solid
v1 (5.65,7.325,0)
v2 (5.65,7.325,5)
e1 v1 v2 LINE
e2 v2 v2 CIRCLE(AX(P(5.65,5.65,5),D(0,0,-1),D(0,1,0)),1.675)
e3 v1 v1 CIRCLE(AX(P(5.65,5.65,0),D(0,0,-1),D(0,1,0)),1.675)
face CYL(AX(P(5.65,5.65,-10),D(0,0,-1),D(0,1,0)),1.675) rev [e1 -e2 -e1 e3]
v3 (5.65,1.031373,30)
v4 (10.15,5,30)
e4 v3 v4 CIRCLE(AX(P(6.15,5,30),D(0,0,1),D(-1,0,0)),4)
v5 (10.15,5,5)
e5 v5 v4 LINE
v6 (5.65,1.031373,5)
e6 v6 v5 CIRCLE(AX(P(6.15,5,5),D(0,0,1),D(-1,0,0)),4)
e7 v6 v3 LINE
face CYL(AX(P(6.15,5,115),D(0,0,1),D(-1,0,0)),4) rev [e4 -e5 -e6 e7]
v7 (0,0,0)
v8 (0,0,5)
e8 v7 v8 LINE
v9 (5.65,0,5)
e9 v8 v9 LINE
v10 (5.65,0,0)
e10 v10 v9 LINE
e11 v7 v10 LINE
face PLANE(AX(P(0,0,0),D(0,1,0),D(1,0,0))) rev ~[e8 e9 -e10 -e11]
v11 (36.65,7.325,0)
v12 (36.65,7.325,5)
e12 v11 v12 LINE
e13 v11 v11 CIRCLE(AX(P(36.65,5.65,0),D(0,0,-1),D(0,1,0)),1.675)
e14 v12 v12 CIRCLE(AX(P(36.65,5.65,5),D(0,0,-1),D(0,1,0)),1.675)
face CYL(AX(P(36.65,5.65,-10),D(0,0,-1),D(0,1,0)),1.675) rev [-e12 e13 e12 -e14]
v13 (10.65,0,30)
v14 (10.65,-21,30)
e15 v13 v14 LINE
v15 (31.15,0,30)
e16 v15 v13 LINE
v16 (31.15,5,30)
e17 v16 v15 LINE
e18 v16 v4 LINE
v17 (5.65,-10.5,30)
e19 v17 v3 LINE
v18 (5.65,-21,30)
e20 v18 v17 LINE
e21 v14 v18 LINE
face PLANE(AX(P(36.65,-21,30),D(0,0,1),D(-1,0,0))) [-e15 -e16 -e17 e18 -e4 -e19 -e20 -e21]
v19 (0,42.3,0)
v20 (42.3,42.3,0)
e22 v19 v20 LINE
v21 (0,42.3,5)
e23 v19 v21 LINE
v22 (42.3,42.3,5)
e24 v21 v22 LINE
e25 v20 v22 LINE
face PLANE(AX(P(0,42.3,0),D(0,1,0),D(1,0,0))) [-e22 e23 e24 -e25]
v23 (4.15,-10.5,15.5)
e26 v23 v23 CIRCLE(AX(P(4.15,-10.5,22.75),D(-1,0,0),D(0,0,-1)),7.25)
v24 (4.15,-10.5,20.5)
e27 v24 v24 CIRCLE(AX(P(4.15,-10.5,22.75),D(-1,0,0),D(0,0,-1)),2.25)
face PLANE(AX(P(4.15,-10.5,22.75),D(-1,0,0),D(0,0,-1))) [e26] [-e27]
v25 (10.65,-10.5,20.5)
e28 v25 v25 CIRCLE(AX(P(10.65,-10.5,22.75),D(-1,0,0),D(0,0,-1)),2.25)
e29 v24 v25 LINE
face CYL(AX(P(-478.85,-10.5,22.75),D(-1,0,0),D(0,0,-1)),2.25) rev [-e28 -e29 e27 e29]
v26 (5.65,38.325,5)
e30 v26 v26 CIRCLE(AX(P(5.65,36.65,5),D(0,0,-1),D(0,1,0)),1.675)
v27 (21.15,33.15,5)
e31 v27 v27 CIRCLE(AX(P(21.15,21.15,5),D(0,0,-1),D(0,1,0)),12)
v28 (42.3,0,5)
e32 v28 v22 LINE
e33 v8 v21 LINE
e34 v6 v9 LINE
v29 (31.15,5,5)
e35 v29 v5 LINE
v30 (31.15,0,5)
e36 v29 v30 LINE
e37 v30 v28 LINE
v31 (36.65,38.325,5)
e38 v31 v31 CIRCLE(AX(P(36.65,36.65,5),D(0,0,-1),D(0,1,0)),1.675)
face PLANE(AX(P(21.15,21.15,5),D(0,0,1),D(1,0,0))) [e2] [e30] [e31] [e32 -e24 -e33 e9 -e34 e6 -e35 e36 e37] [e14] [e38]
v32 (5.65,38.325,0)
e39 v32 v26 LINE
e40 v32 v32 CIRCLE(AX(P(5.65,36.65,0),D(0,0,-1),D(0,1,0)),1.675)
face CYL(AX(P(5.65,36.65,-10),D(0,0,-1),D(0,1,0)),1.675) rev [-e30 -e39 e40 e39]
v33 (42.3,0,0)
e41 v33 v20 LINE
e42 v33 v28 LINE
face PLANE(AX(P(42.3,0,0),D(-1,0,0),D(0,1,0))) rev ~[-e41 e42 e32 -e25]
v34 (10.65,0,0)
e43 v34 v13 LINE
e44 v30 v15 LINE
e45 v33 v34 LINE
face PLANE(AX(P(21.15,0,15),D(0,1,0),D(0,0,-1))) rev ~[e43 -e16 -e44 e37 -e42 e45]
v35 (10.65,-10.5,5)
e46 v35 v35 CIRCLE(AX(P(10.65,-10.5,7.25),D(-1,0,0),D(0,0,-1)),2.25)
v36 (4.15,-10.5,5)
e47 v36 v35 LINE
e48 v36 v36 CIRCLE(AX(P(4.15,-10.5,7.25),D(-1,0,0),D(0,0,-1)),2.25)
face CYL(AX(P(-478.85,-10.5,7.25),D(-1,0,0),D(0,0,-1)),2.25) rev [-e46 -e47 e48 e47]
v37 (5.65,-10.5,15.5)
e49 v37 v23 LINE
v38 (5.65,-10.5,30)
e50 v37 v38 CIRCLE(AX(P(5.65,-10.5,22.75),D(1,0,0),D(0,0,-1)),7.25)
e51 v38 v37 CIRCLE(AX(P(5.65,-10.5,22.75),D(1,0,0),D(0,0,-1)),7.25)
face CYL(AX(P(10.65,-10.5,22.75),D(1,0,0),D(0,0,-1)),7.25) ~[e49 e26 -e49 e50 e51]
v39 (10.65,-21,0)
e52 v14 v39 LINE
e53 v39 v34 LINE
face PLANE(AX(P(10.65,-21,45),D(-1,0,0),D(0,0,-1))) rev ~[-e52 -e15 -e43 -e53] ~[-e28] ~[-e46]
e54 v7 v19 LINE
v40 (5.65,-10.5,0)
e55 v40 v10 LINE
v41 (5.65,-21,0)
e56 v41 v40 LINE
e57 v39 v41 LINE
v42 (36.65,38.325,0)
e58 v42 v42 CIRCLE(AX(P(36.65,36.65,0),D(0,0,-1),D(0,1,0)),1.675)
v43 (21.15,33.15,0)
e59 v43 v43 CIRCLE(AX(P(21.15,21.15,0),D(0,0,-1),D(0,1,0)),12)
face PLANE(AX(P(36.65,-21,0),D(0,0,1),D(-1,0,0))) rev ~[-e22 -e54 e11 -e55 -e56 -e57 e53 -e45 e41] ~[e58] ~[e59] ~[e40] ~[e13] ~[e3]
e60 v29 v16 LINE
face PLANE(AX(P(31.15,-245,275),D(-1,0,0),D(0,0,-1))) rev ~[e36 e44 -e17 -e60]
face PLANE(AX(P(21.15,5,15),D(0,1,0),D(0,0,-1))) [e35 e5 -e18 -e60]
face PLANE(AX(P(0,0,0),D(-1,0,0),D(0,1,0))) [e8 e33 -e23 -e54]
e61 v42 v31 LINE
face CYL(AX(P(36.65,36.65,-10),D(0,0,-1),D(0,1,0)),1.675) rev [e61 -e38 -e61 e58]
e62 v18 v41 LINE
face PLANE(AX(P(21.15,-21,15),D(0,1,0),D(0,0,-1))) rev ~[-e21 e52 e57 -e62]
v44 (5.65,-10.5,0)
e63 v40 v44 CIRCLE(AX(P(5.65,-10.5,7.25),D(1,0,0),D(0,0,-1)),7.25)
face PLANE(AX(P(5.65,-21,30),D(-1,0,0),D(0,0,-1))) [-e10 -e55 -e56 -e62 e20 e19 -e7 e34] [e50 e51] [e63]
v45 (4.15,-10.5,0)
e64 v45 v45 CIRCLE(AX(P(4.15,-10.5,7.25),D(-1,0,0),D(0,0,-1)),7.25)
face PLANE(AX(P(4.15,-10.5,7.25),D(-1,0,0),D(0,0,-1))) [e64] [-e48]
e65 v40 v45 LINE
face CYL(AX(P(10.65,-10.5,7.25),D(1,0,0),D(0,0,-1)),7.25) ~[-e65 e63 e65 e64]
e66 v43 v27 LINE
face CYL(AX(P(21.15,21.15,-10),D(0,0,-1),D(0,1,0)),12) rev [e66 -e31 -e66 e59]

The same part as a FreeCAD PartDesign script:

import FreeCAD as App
import Part
import Sketcher
from FreeCAD import Vector
Q = App.Units.Quantity


def add_polygon(sketch, points):
    """Adds a closed chain of lines whose ends are joined by coincident constraints."""
    first, n = sketch.GeometryCount, len(points)
    for a, b in zip(points, points[1:] + points[:1]):
        sketch.addGeometry(Part.LineSegment(App.Vector(*a, 0), App.Vector(*b, 0)), False)
    for i in range(n):
        sketch.addConstraint(Sketcher.Constraint("Coincident", first + i, 2, first + (i + 1) % n, 1))

doc = App.newDocument("Part")
params = doc.addObject("Spreadsheet::Sheet", "Params")
for row, (alias, value) in enumerate([
    ("sketch1_width", "500 mm"),
    ("pad1_length", "500 mm"),
    ("sketch2_diameter", "4.5 mm"),
    ("pad2_length", "1000 mm"),
    ("sketch3_diameter", "4.5 mm"),
    ("pad3_length", "1000 mm"),
    ("sketch4_diameter", "14.5 mm"),
    ("pad4_length", "6.5 mm"),
    ("sketch5_diameter", "14.5 mm"),
    ("pad5_length", "6.5 mm"),
    ("sketch6_diameter", "14.5 mm"),
    ("pad6_length", "6.5 mm"),
    ("sketch7_diameter", "14.5 mm"),
    ("pad7_length", "6.5 mm"),
    ("sketch8_diameter", "8 mm"),
    ("pad8_length", "200 mm"),
    ("sketch9_width", "60 mm"),
    ("sketch9_height", "21 mm"),
    ("pad9_length", "21 mm"),
    ("sketch10_width", "30 mm"),
    ("sketch10_height", "31 mm"),
    ("pad10_length", "26 mm"),
    ("sketch11_diameter", "24 mm"),
    ("sketch11_diameter2", "3.35 mm"),
    ("pad11_length", "20 mm"),
    ("sketch12_width", "42.3 mm"),
    ("pad12_length", "5 mm"),
], start=1):
    params.set(f"A{row}", alias)
    params.set(f"B{row}", "=" + value)
    params.setAlias(f"B{row}", alias)

body = doc.addObject("PartDesign::Body", "Body")

sketch1 = body.newObject("Sketcher::SketchObject", "Sketch")
sketch1.AttachmentSupport = (doc.getObject("XY_Plane"), [""])
sketch1.MapMode = "FlatFace"
sketch1.AttachmentOffset = App.Placement(Vector(0, 0, -250), App.Rotation())
add_polygon(sketch1, [(-250, -10), (-250, -510), (250, -510), (250, -10)])
sketch1.addConstraint([
    Sketcher.Constraint("Vertical", 0),
    Sketcher.Constraint("Horizontal", 1),
    Sketcher.Constraint("Vertical", 2),
    Sketcher.Constraint("Horizontal", 3),
    Sketcher.Constraint("Equal", 3, 0),
    Sketcher.Constraint("DistanceX", 1, 1, 1, 2, Q("500 mm")),
    Sketcher.Constraint("DistanceX", 0, 2, -1, 1, Q("250 mm")),
    Sketcher.Constraint("DistanceY", 0, 2, -1, 1, Q("510 mm")),
])
sketch1.setExpression("Constraints[9]", "Params.sketch1_width")
pad1 = body.newObject("PartDesign::Pad", "Pad")
pad1.Profile = sketch1
pad1.setExpression("Length", "Params.pad1_length")
body2 = doc.addObject("PartDesign::Body", "Body001")

sketch2 = body2.newObject("Sketcher::SketchObject", "Sketch001")
sketch2.AttachmentSupport = (doc.getObject("XZ_Plane001"), [""])
sketch2.MapMode = "FlatFace"
sketch2.AttachmentOffset = App.Placement(Vector(0, 0, -500), App.Rotation())
sketch2.addGeometry(Part.Circle(Vector(15.5, 0, 0), Vector(0, 0, 1), 2.2), False)
sketch2.addConstraint([
    Sketcher.Constraint("PointOnObject", 0, 3, -1),
    Sketcher.Constraint("Diameter", 0, Q("4.5 mm")),
    Sketcher.Constraint("DistanceX", -1, 1, 0, 3, Q("15.5 mm")),
])
sketch2.setExpression("Constraints[1]", "Params.sketch2_diameter")
pad2 = body2.newObject("PartDesign::Pad", "Pad001")
pad2.Profile = sketch2
pad2.setExpression("Length", "Params.pad2_length")
body3 = doc.addObject("PartDesign::Body", "Body002")
body3.AllowCompound = True

sketch3 = body3.newObject("Sketcher::SketchObject", "Sketch002")
sketch3.AttachmentSupport = (doc.getObject("XZ_Plane002"), [""])
sketch3.MapMode = "FlatFace"
sketch3.AttachmentOffset = App.Placement(Vector(0, 0, -500), App.Rotation())
sketch3.addGeometry(Part.Circle(Vector(0, 0, 0), Vector(0, 0, 1), 2.2), False)
sketch3.addConstraint([
    Sketcher.Constraint("Coincident", 0, 3, -1, 1),
    Sketcher.Constraint("Diameter", 0, Q("4.5 mm")),
])
sketch3.setExpression("Constraints[1]", "Params.sketch3_diameter")
pad3 = body3.newObject("PartDesign::Pad", "Pad002")
pad3.Profile = sketch3
pad3.setExpression("Length", "Params.pad3_length")
doc.recompute()

boolean = body3.newObject("PartDesign::Boolean", "Boolean")
boolean.Type = "Fuse"
boolean.addObjects([body2])
body4 = doc.addObject("PartDesign::Body", "Body003")
body4.AllowCompound = True
doc.recompute()

body3.Placement = App.Placement(Vector(2.25, 0, -15.5), App.Rotation(Vector(0, 0, 1), 0))
boolean2 = body4.newObject("PartDesign::Boolean", "Boolean001")
boolean2.Type = "Fuse"
boolean2.addObjects([body3])
doc.recompute()

boolean3 = body4.newObject("PartDesign::Boolean", "Boolean002")
boolean3.Type = "Fuse"
boolean3.addObjects([body])
body5 = doc.addObject("PartDesign::Body", "Body004")

sketch4 = body5.newObject("Sketcher::SketchObject", "Sketch003")
sketch4.AttachmentSupport = (doc.getObject("XZ_Plane004"), [""])
sketch4.MapMode = "FlatFace"
sketch4.addGeometry(Part.Circle(Vector(16, 0, 0), Vector(0, 0, 1), 7), False)
sketch4.addConstraint([
    Sketcher.Constraint("PointOnObject", 0, 3, -1),
    Sketcher.Constraint("Diameter", 0, Q("14.5 mm")),
    Sketcher.Constraint("DistanceX", -1, 1, 0, 3, Q("15.5 mm")),
])
sketch4.setExpression("Constraints[1]", "Params.sketch4_diameter")
pad4 = body5.newObject("PartDesign::Pad", "Pad003")
pad4.Profile = sketch4
pad4.setExpression("Length", "Params.pad4_length")
body6 = doc.addObject("PartDesign::Body", "Body005")
body6.AllowCompound = True

sketch5 = body6.newObject("Sketcher::SketchObject", "Sketch004")
sketch5.AttachmentSupport = (doc.getObject("XZ_Plane005"), [""])
sketch5.MapMode = "FlatFace"
sketch5.addGeometry(Part.Circle(Vector(0, 0, 0), Vector(0, 0, 1), 7), False)
sketch5.addConstraint([
    Sketcher.Constraint("Coincident", 0, 3, -1, 1),
    Sketcher.Constraint("Diameter", 0, Q("14.5 mm")),
])
sketch5.setExpression("Constraints[1]", "Params.sketch5_diameter")
pad5 = body6.newObject("PartDesign::Pad", "Pad004")
pad5.Profile = sketch5
pad5.setExpression("Length", "Params.pad5_length")
doc.recompute()

boolean4 = body6.newObject("PartDesign::Boolean", "Boolean003")
boolean4.Type = "Fuse"
boolean4.addObjects([body5])
body7 = doc.addObject("PartDesign::Body", "Body006")
body7.AllowCompound = True
doc.recompute()

body6.Placement = App.Placement(Vector(2.25, 10.5, -15.5), App.Rotation(Vector(1, 0, 0), 180))
boolean5 = body7.newObject("PartDesign::Boolean", "Boolean004")
boolean5.Type = "Fuse"
boolean5.addObjects([body6])
body8 = doc.addObject("PartDesign::Body", "Body007")

sketch6 = body8.newObject("Sketcher::SketchObject", "Sketch005")
sketch6.AttachmentSupport = (doc.getObject("XZ_Plane007"), [""])
sketch6.MapMode = "FlatFace"
sketch6.addGeometry(Part.Circle(Vector(16, 0, 0), Vector(0, 0, 1), 7), False)
sketch6.addConstraint([
    Sketcher.Constraint("PointOnObject", 0, 3, -1),
    Sketcher.Constraint("Diameter", 0, Q("14.5 mm")),
    Sketcher.Constraint("DistanceX", -1, 1, 0, 3, Q("15.5 mm")),
])
sketch6.setExpression("Constraints[1]", "Params.sketch6_diameter")
pad6 = body8.newObject("PartDesign::Pad", "Pad005")
pad6.Profile = sketch6
pad6.setExpression("Length", "Params.pad6_length")
body9 = doc.addObject("PartDesign::Body", "Body008")
body9.AllowCompound = True

sketch7 = body9.newObject("Sketcher::SketchObject", "Sketch006")
sketch7.AttachmentSupport = (doc.getObject("XZ_Plane008"), [""])
sketch7.MapMode = "FlatFace"
sketch7.addGeometry(Part.Circle(Vector(0, 0, 0), Vector(0, 0, 1), 7), False)
sketch7.addConstraint([
    Sketcher.Constraint("Coincident", 0, 3, -1, 1),
    Sketcher.Constraint("Diameter", 0, Q("14.5 mm")),
])
sketch7.setExpression("Constraints[1]", "Params.sketch7_diameter")
pad7 = body9.newObject("PartDesign::Pad", "Pad006")
pad7.Profile = sketch7
pad7.setExpression("Length", "Params.pad7_length")
doc.recompute()

boolean6 = body9.newObject("PartDesign::Boolean", "Boolean005")
boolean6.Type = "Fuse"
boolean6.addObjects([body8])
body10 = doc.addObject("PartDesign::Body", "Body009")
body10.AllowCompound = True
doc.recompute()

body9.Placement = App.Placement(Vector(2.25, -10.5, -15.5), App.Rotation(Vector(0, 0, 1), 0))
boolean7 = body10.newObject("PartDesign::Boolean", "Boolean006")
boolean7.Type = "Fuse"
boolean7.addObjects([body9])
doc.recompute()

boolean8 = body10.newObject("PartDesign::Boolean", "Boolean007")
boolean8.Type = "Fuse"
boolean8.addObjects([body7])
body11 = doc.addObject("PartDesign::Body", "Body010")

sketch8 = body11.newObject("Sketcher::SketchObject", "Sketch007")
sketch8.AttachmentSupport = (doc.getObject("YZ_Plane010"), [""])
sketch8.MapMode = "FlatFace"
sketch8.AttachmentOffset = App.Placement(Vector(0, 0, -100), App.Rotation())
sketch8.addGeometry(Part.Circle(Vector(15, 13, 0), Vector(0, 0, 1), 4), False)
sketch8.addConstraint([
    Sketcher.Constraint("Diameter", 0, Q("8 mm")),
    Sketcher.Constraint("DistanceX", -1, 1, 0, 3, Q("15 mm")),
    Sketcher.Constraint("DistanceY", -1, 1, 0, 3, Q("13 mm")),
])
sketch8.setExpression("Constraints[0]", "Params.sketch8_diameter")
pad8 = body11.newObject("PartDesign::Pad", "Pad007")
pad8.Profile = sketch8
pad8.setExpression("Length", "Params.pad8_length")
body12 = doc.addObject("PartDesign::Body", "Body011")
body12.AllowCompound = True

sketch9 = body12.newObject("Sketcher::SketchObject", "Sketch008")
sketch9.AttachmentSupport = (doc.getObject("XY_Plane011"), [""])
sketch9.MapMode = "FlatFace"
sketch9.AttachmentOffset = App.Placement(Vector(0, 0, -13), App.Rotation())
add_polygon(sketch9, [(-30, 10), (-30, -10), (30, -10), (30, 10)])
sketch9.addConstraint([
    Sketcher.Constraint("Vertical", 0),
    Sketcher.Constraint("Horizontal", 1),
    Sketcher.Constraint("Vertical", 2),
    Sketcher.Constraint("Horizontal", 3),
    Sketcher.Constraint("Symmetric", 0, 2, 2, 2, -1, 1),
    Sketcher.Constraint("DistanceX", 1, 1, 1, 2, Q("60 mm")),
    Sketcher.Constraint("DistanceY", 0, 2, 0, 1, Q("21 mm")),
])
sketch9.setExpression("Constraints[9]", "Params.sketch9_width")
sketch9.setExpression("Constraints[10]", "Params.sketch9_height")
pad9 = body12.newObject("PartDesign::Pad", "Pad008")
pad9.Profile = sketch9
pad9.setExpression("Length", "Params.pad9_length")
doc.recompute()

boolean9 = body12.newObject("PartDesign::Boolean", "Boolean008")
boolean9.Type = "Fuse"
boolean9.addObjects([body11])
body13 = doc.addObject("PartDesign::Body", "Body012")

sketch10 = body13.newObject("Sketcher::SketchObject", "Sketch009")
sketch10.AttachmentSupport = (doc.getObject("XY_Plane012"), [""])
sketch10.MapMode = "FlatFace"
sketch10.AttachmentOffset = App.Placement(Vector(0, 0, -13), App.Rotation())
add_polygon(sketch10, [(-15, 16), (-15, -16), (15, -16), (15, 16)])
sketch10.addConstraint([
    Sketcher.Constraint("Vertical", 0),
    Sketcher.Constraint("Horizontal", 1),
    Sketcher.Constraint("Vertical", 2),
    Sketcher.Constraint("Horizontal", 3),
    Sketcher.Constraint("Symmetric", 0, 2, 2, 2, -1, 1),
    Sketcher.Constraint("DistanceX", 1, 1, 1, 2, Q("30 mm")),
    Sketcher.Constraint("DistanceY", 0, 2, 0, 1, Q("31 mm")),
])
sketch10.setExpression("Constraints[9]", "Params.sketch10_width")
sketch10.setExpression("Constraints[10]", "Params.sketch10_height")
pad10 = body13.newObject("PartDesign::Pad", "Pad009")
pad10.Profile = sketch10
pad10.setExpression("Length", "Params.pad10_length")
doc.recompute()

boolean10 = body13.newObject("PartDesign::Boolean", "Boolean009")
boolean10.Type = "Cut"
boolean10.addObjects([body12])
body14 = doc.addObject("PartDesign::Body", "Body013")
doc.recompute()

body13.Placement = App.Placement(Vector(10, 0, -13), App.Rotation(Vector(0, 0, 1), 0))
boolean11 = body14.newObject("PartDesign::Boolean", "Boolean010")
boolean11.Type = "Fuse"
boolean11.addObjects([body13])
doc.recompute()

boolean12 = body14.newObject("PartDesign::Boolean", "Boolean011")
boolean12.Type = "Fuse"
boolean12.addObjects([body10])
doc.recompute()

boolean13 = body14.newObject("PartDesign::Boolean", "Boolean012")
boolean13.Type = "Cut"
boolean13.addObjects([body4])
body15 = doc.addObject("PartDesign::Body", "Body014")
doc.recompute()

body14.Placement = App.Placement(Vector(0, 0, 0), App.Rotation(Vector(0, 1, 0), 90))
boolean14 = body15.newObject("PartDesign::Boolean", "Boolean013")
boolean14.Type = "Fuse"
boolean14.addObjects([body14])
body16 = doc.addObject("PartDesign::Body", "Body015")
doc.recompute()

body15.Placement = App.Placement(Vector(21.15, 5, 25), App.Rotation(Vector(0, 0, 1), 90))
boolean15 = body16.newObject("PartDesign::Boolean", "Boolean014")
boolean15.Type = "Fuse"
boolean15.addObjects([body15])
body17 = doc.addObject("PartDesign::Body", "Body016")
body17.AllowCompound = True

sketch11 = body17.newObject("Sketcher::SketchObject", "Sketch010")
sketch11.AttachmentSupport = (doc.getObject("XY_Plane016"), [""])
sketch11.MapMode = "FlatFace"
sketch11.addGeometry([
    Part.Circle(Vector(0, 0, 0), Vector(0, 0, 1), 12),
    Part.Circle(Vector(15.5, 15.5, 0), Vector(0, 0, 1), 1.7),
    Part.Circle(Vector(-15.5, 15.5, 0), Vector(0, 0, 1), 1.7),
    Part.Circle(Vector(-15.5, -15.5, 0), Vector(0, 0, 1), 1.7),
    Part.Circle(Vector(15.5, -15.5, 0), Vector(0, 0, 1), 1.7),
], False)
sketch11.addConstraint([
    Sketcher.Constraint("Coincident", 0, 3, -1, 1),
    Sketcher.Constraint("Equal", 1, 2),
    Sketcher.Constraint("Equal", 2, 3),
    Sketcher.Constraint("Equal", 3, 4),
    Sketcher.Constraint("Symmetric", 1, 3, 3, 3, -1, 1),
    Sketcher.Constraint("Symmetric", 2, 3, 4, 3, -1, 1),
    Sketcher.Constraint("Symmetric", 1, 3, 2, 3, -2),
    Sketcher.Constraint("Diameter", 0, Q("24 mm")),
    Sketcher.Constraint("Diameter", 1, Q("3.35 mm")),
    Sketcher.Constraint("DistanceX", 2, 3, 1, 3, Q("31 mm")),
    Sketcher.Constraint("DistanceY", 3, 3, 2, 3, Q("31 mm")),
])
sketch11.setExpression("Constraints[7]", "Params.sketch11_diameter")
sketch11.setExpression("Constraints[8]", "Params.sketch11_diameter2")
pad11 = body17.newObject("PartDesign::Pad", "Pad010")
pad11.Profile = sketch11
pad11.setExpression("Length", "Params.pad11_length")
body18 = doc.addObject("PartDesign::Body", "Body017")
body18.AllowCompound = True
doc.recompute()

body17.Placement = App.Placement(Vector(21.15, 21.15, -10), App.Rotation(Vector(0, 0, 1), 0))
boolean16 = body18.newObject("PartDesign::Boolean", "Boolean015")
boolean16.Type = "Fuse"
boolean16.addObjects([body17])
body19 = doc.addObject("PartDesign::Body", "Body018")

sketch12 = body19.newObject("Sketcher::SketchObject", "Sketch011")
sketch12.AttachmentSupport = (doc.getObject("XY_Plane018"), [""])
sketch12.MapMode = "FlatFace"
add_polygon(sketch12, [(0, 42), (0, 0), (42, 0), (42, 42)])
sketch12.addConstraint([
    Sketcher.Constraint("Vertical", 0),
    Sketcher.Constraint("Horizontal", 1),
    Sketcher.Constraint("Vertical", 2),
    Sketcher.Constraint("Horizontal", 3),
    Sketcher.Constraint("Coincident", 0, 2, -1, 1),
    Sketcher.Constraint("Equal", 3, 0),
    Sketcher.Constraint("DistanceX", 1, 1, 1, 2, Q("42.3 mm")),
])
sketch12.setExpression("Constraints[10]", "Params.sketch12_width")
pad12 = body19.newObject("PartDesign::Pad", "Pad011")
pad12.Profile = sketch12
pad12.setExpression("Length", "Params.pad12_length")
doc.recompute()

boolean17 = body19.newObject("PartDesign::Boolean", "Boolean016")
boolean17.Type = "Cut"
boolean17.addObjects([body18])
doc.recompute()

boolean18 = body19.newObject("PartDesign::Boolean", "Boolean017")
boolean18.Type = "Fuse"
boolean18.addObjects([body16])

doc.recompute()
